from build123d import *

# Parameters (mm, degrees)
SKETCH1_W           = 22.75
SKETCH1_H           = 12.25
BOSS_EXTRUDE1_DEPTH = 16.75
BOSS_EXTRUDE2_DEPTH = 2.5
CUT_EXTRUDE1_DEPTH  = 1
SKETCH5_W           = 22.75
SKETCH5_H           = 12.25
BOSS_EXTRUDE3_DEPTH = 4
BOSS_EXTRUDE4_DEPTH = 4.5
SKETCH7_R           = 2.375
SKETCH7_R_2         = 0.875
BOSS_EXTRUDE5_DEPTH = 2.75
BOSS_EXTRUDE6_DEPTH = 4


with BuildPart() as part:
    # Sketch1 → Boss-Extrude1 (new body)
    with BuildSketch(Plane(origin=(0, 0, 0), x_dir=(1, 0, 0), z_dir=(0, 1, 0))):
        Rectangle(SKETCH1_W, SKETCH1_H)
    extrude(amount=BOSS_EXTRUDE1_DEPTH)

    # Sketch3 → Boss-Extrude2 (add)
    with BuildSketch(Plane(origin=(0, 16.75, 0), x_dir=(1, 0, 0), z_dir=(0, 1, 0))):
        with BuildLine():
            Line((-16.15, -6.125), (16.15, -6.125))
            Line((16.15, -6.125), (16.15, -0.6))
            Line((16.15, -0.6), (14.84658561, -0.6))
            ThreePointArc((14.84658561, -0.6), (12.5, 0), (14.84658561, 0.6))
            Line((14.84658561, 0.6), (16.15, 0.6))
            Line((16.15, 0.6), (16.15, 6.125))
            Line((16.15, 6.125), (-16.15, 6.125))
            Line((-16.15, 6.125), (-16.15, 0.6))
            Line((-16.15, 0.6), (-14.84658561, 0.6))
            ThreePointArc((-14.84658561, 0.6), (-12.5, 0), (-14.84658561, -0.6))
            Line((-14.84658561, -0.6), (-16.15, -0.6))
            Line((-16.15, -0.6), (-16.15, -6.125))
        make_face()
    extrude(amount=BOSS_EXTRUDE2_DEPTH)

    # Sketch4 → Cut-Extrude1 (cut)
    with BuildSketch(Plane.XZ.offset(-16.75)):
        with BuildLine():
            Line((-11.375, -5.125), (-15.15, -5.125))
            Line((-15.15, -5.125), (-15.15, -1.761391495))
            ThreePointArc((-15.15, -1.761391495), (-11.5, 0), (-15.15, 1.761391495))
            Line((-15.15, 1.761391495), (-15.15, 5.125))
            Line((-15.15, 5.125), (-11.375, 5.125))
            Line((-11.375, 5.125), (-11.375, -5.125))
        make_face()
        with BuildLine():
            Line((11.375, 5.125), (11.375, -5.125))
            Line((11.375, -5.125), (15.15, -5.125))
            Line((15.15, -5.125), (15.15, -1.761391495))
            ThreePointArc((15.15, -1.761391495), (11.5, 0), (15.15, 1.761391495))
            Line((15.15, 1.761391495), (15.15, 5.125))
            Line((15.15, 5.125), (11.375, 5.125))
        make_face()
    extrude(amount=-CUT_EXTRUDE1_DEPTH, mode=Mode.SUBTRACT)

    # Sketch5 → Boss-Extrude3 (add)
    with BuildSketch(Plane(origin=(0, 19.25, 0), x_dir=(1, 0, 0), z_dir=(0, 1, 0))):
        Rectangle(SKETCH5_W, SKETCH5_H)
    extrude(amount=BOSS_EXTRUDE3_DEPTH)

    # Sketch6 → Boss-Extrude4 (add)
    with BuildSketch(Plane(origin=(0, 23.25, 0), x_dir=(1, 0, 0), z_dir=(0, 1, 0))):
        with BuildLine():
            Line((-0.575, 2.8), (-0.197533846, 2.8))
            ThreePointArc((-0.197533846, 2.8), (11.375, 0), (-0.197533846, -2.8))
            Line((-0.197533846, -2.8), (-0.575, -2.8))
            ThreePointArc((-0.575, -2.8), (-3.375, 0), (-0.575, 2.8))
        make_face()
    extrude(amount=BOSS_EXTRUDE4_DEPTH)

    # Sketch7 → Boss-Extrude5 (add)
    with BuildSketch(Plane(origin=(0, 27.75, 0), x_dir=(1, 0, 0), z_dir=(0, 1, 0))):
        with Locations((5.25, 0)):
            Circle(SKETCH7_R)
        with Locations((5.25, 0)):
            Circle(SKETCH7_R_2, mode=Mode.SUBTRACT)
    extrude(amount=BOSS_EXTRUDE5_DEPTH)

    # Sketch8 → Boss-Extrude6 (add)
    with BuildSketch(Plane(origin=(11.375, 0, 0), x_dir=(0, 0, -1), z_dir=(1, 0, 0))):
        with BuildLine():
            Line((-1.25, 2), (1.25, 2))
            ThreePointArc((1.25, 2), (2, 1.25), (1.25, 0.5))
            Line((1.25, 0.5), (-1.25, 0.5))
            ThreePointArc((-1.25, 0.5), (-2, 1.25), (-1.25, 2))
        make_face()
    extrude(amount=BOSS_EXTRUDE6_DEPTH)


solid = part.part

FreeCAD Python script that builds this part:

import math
import FreeCAD as App
import Part
import Sketcher

V = App.Vector
Q = App.Units.Quantity


def add_polygon(sketch, points):
    """Adds a closed chain of lines whose ends are joined by coincident constraints."""
    first, n = sketch.GeometryCount, len(points)
    for a, b in zip(points, points[1:] + points[:1]):
        sketch.addGeometry(Part.LineSegment(App.Vector(*a, 0), App.Vector(*b, 0)), False)
    for i in range(n):
        sketch.addConstraint(Sketcher.Constraint("Coincident", first + i, 2, first + (i + 1) % n, 1))

doc = App.newDocument("Part")
params = doc.addObject("Spreadsheet::Sheet", "Params")
for row, (alias, value) in enumerate([
    ("sketch1_width", "22.75 mm"),
    ("sketch1_height", "12.25 mm"),
    ("pad1_length", "16.75 mm"),
    ("sketch2_radius", "1.25 mm"),
    ("sketch2_width", "32.3 mm"),
    ("pad2_length", "2.5 mm"),
    ("sketch3_radius", "2.25 mm"),
    ("sketch3_height", "10.25 mm"),
    ("pocket1_length", "1 mm"),
    ("sketch4_width", "22.75 mm"),
    ("sketch4_height", "12.25 mm"),
    ("pad3_length", "4 mm"),
    ("sketch5_radius", "2.8 mm"),
    ("pad4_length", "4.5 mm"),
    ("sketch6_diameter", "4.75 mm"),
    ("sketch6_diameter2", "1.75 mm"),
    ("pad5_length", "2.75 mm"),
    ("sketch7_radius", "0.75 mm"),
    ("sketch7_height", "2.5 mm"),
    ("pad6_length", "4 mm"),
], start=1):
    params.set(f"A{row}", alias)
    params.set(f"B{row}", "=" + value)
    params.setAlias(f"B{row}", alias)

body = doc.addObject("PartDesign::Body", "Body")

# Sketch on XZ plane
sketch1 = body.newObject("Sketcher::SketchObject", "Sketch")
sketch1.AttachmentSupport = (doc.getObject("XZ_Plane"), [""])
sketch1.MapMode = "FlatFace"
add_polygon(sketch1, [(-11, -6), (-11, 6), (11, 6), (11, -6)])  # lines 0-3
sketch1.addConstraint(Sketcher.Constraint("Vertical", 0))
sketch1.addConstraint(Sketcher.Constraint("Horizontal", 1))
sketch1.addConstraint(Sketcher.Constraint("Vertical", 2))
sketch1.addConstraint(Sketcher.Constraint("Horizontal", 3))
sketch1.addConstraint(Sketcher.Constraint("Symmetric", 0, 2, 2, 2, -1, 1))
sketch1.addConstraint(Sketcher.Constraint("DistanceX", 1, 1, 1, 2, Q("22.75 mm")))
sketch1.addConstraint(Sketcher.Constraint("DistanceY", 0, 1, 0, 2, Q("12.25 mm")))
sketch1.setExpression("Constraints[9]", "Params.sketch1_width")
sketch1.setExpression("Constraints[10]", "Params.sketch1_height")
pad1 = body.newObject("PartDesign::Pad", "Pad")
pad1.Profile = sketch1
pad1.setExpression("Length", "Params.pad1_length")
pad1.Reversed = True

# Sketch on XZ plane
sketch2 = body.newObject("Sketcher::SketchObject", "Sketch001")
sketch2.AttachmentSupport = (doc.getObject("XZ_Plane"), [""])
sketch2.MapMode = "FlatFace"
sketch2.AttachmentOffset = App.Placement(V(0, 0, -16.75), App.Rotation())
sketch2.addGeometry(Part.LineSegment(V(-16.1, 6.1, 0), V(16.1, 6.1, 0)), False)
sketch2.addGeometry(Part.LineSegment(V(16.1, 6.1, 0), V(16.1, 0.6, 0)), False)
sketch2.addGeometry(Part.LineSegment(V(16.1, 0.6, 0), V(14.8, 0.6, 0)), False)
sketch2.addGeometry(Part.ArcOfCircle(Part.Circle(V(13.8, 0, 0), V(0, 0, 1), 1.2), math.radians(29), math.radians(331)), False)
sketch2.addGeometry(Part.LineSegment(V(14.8, -0.6, 0), V(16.1, -0.6, 0)), False)
sketch2.addGeometry(Part.LineSegment(V(16.1, -0.6, 0), V(16.1, -6.1, 0)), False)
sketch2.addGeometry(Part.LineSegment(V(16.1, -6.1, 0), V(-16.1, -6.1, 0)), False)
sketch2.addGeometry(Part.LineSegment(V(-16.1, -6.1, 0), V(-16.1, -0.6, 0)), False)
sketch2.addGeometry(Part.LineSegment(V(-16.1, -0.6, 0), V(-14.8, -0.6, 0)), False)
sketch2.addGeometry(Part.ArcOfCircle(Part.Circle(V(-13.8, 0, 0), V(0, 0, 1), 1.2), math.radians(-151), math.radians(151)), False)
sketch2.addGeometry(Part.LineSegment(V(-14.8, 0.6, 0), V(-16.1, 0.6, 0)), False)
sketch2.addGeometry(Part.LineSegment(V(-16.1, 0.6, 0), V(-16.1, 6.1, 0)), False)
sketch2.addConstraint(Sketcher.Constraint("Coincident", 0, 2, 1, 1))
sketch2.addConstraint(Sketcher.Constraint("Coincident", 1, 2, 2, 1))
sketch2.addConstraint(Sketcher.Constraint("Coincident", 2, 2, 3, 1))
sketch2.addConstraint(Sketcher.Constraint("Coincident", 3, 2, 4, 1))
sketch2.addConstraint(Sketcher.Constraint("Coincident", 4, 2, 5, 1))
sketch2.addConstraint(Sketcher.Constraint("Coincident", 5, 2, 6, 1))
sketch2.addConstraint(Sketcher.Constraint("Coincident", 6, 2, 7, 1))
sketch2.addConstraint(Sketcher.Constraint("Coincident", 7, 2, 8, 1))
sketch2.addConstraint(Sketcher.Constraint("Coincident", 8, 2, 9, 1))
sketch2.addConstraint(Sketcher.Constraint("Coincident", 9, 2, 10, 1))
sketch2.addConstraint(Sketcher.Constraint("Coincident", 10, 2, 11, 1))
sketch2.addConstraint(Sketcher.Constraint("Coincident", 11, 2, 0, 1))
sketch2.addConstraint(Sketcher.Constraint("Horizontal", 0))
sketch2.addConstraint(Sketcher.Constraint("Vertical", 1))
sketch2.addConstraint(Sketcher.Constraint("Horizontal", 2))
sketch2.addConstraint(Sketcher.Constraint("Horizontal", 4))
sketch2.addConstraint(Sketcher.Constraint("Vertical", 5))
sketch2.addConstraint(Sketcher.Constraint("Horizontal", 6))
sketch2.addConstraint(Sketcher.Constraint("Vertical", 7))
sketch2.addConstraint(Sketcher.Constraint("Horizontal", 8))
sketch2.addConstraint(Sketcher.Constraint("Horizontal", 10))
sketch2.addConstraint(Sketcher.Constraint("Vertical", 11))
sketch2.addConstraint(Sketcher.Constraint("Equal", 3, 9))
sketch2.addConstraint(Sketcher.Constraint("Symmetric", 3, 3, 9, 3, -1, 1))
sketch2.addConstraint(Sketcher.Constraint("Symmetric", 0, 2, 6, 2, -1, 1))
sketch2.addConstraint(Sketcher.Constraint("Symmetric", 4, 2, 10, 2, -1, 1))
sketch2.addConstraint(Sketcher.Constraint("Symmetric", 4, 2, 7, 2, -2))
sketch2.addConstraint(Sketcher.Constraint("Symmetric", 2, 2, 9, 2, -2))
sketch2.addConstraint(Sketcher.Constraint("Radius", 3, Q("1.25 mm")))
sketch2.addConstraint(Sketcher.Constraint("DistanceX", 0, 1, 0, 2, Q("32.3 mm")))
sketch2.addConstraint(Sketcher.Constraint("DistanceY", -1, 1, 1, 2, Q("0.6 mm")))
sketch2.addConstraint(Sketcher.Constraint("DistanceX", 9, 3, 3, 3, Q("27.5 mm")))
sketch2.addConstraint(Sketcher.Constraint("DistanceY", 1, 2, 1, 1, Q("5.525 mm")))
sketch2.setExpression("Constraints[28]", "Params.sketch2_radius")
sketch2.setExpression("Constraints[29]", "Params.sketch2_width")
pad2 = body.newObject("PartDesign::Pad", "Pad001")
pad2.Profile = sketch2
pad2.setExpression("Length", "Params.pad2_length")
pad2.Reversed = True

# Sketch on XZ plane
sketch3 = body.newObject("Sketcher::SketchObject", "Sketch002")
sketch3.AttachmentSupport = (doc.getObject("XZ_Plane"), [""])
sketch3.MapMode = "FlatFace"
sketch3.AttachmentOffset = App.Placement(V(0, 0, -16.75), App.Rotation())
sketch3.addGeometry(Part.LineSegment(V(-15.2, -5.1, 0), V(-11.4, -5.1, 0)), False)
sketch3.addGeometry(Part.LineSegment(V(-11.4, -5.1, 0), V(-11.4, 5.1, 0)), False)
sketch3.addGeometry(Part.LineSegment(V(-11.4, 5.1, 0), V(-15.2, 5.1, 0)), False)
sketch3.addGeometry(Part.LineSegment(V(-15.2, 5.1, 0), V(-15.2, 1.8, 0)), False)
sketch3.addGeometry(Part.ArcOfCircle(Part.Circle(V(-13.8, 0, 0), V(0, 0, 1), 2.2), math.radians(-128), math.radians(128)), False)
sketch3.addGeometry(Part.LineSegment(V(-15.2, -1.8, 0), V(-15.2, -5.1, 0)), False)
sketch3.addGeometry(Part.LineSegment(V(11.4, 5.1, 0), V(11.4, -5.1, 0)), False)
sketch3.addGeometry(Part.LineSegment(V(11.4, -5.1, 0), V(15.2, -5.1, 0)), False)
sketch3.addGeometry(Part.LineSegment(V(15.2, -5.1, 0), V(15.2, -1.8, 0)), False)
sketch3.addGeometry(Part.ArcOfCircle(Part.Circle(V(13.8, 0, 0), V(0, 0, 1), 2.2), math.radians(52), math.radians(308)), False)
sketch3.addGeometry(Part.LineSegment(V(15.2, 1.8, 0), V(15.2, 5.1, 0)), False)
sketch3.addGeometry(Part.LineSegment(V(15.2, 5.1, 0), V(11.4, 5.1, 0)), False)
sketch3.addConstraint(Sketcher.Constraint("Coincident", 0, 2, 1, 1))
sketch3.addConstraint(Sketcher.Constraint("Coincident", 1, 2, 2, 1))
sketch3.addConstraint(Sketcher.Constraint("Coincident", 2, 2, 3, 1))
sketch3.addConstraint(Sketcher.Constraint("Coincident", 3, 2, 4, 2))
sketch3.addConstraint(Sketcher.Constraint("Coincident", 4, 1, 5, 1))
sketch3.addConstraint(Sketcher.Constraint("Coincident", 5, 2, 0, 1))
sketch3.addConstraint(Sketcher.Constraint("Coincident", 6, 2, 7, 1))
sketch3.addConstraint(Sketcher.Constraint("Coincident", 7, 2, 8, 1))
sketch3.addConstraint(Sketcher.Constraint("Coincident", 8, 2, 9, 2))
sketch3.addConstraint(Sketcher.Constraint("Coincident", 9, 1, 10, 1))
sketch3.addConstraint(Sketcher.Constraint("Coincident", 10, 2, 11, 1))
sketch3.addConstraint(Sketcher.Constraint("Coincident", 11, 2, 6, 1))
sketch3.addConstraint(Sketcher.Constraint("Horizontal", 0))
sketch3.addConstraint(Sketcher.Constraint("Vertical", 1))
sketch3.addConstraint(Sketcher.Constraint("Horizontal", 2))
sketch3.addConstraint(Sketcher.Constraint("Vertical", 3))
sketch3.addConstraint(Sketcher.Constraint("Vertical", 5))
sketch3.addConstraint(Sketcher.Constraint("Vertical", 6))
sketch3.addConstraint(Sketcher.Constraint("Horizontal", 7))
sketch3.addConstraint(Sketcher.Constraint("Vertical", 8))
sketch3.addConstraint(Sketcher.Constraint("Vertical", 10))
sketch3.addConstraint(Sketcher.Constraint("Horizontal", 11))
sketch3.addConstraint(Sketcher.Constraint("Equal", 4, 9))
sketch3.addConstraint(Sketcher.Constraint("Symmetric", 4, 3, 9, 3, -1, 1))
sketch3.addConstraint(Sketcher.Constraint("Symmetric", 1, 2, 6, 2, -1, 1))
sketch3.addConstraint(Sketcher.Constraint("Symmetric", 5, 2, 10, 2, -1, 1))
sketch3.addConstraint(Sketcher.Constraint("Symmetric", 5, 2, 7, 2, -2))
sketch3.addConstraint(Sketcher.Constraint("Symmetric", 3, 2, 9, 1, -2))
sketch3.addConstraint(Sketcher.Constraint("Radius", 4, Q("2.25 mm")))
sketch3.addConstraint(Sketcher.Constraint("DistanceY", 1, 1, 1, 2, Q("10.25 mm")))
sketch3.addConstraint(Sketcher.Constraint("DistanceX", 4, 3, 9, 3, Q("27.5 mm")))
sketch3.addConstraint(Sketcher.Constraint("DistanceX", 2, 2, 4, 3, Q("1.4 mm")))
sketch3.addConstraint(Sketcher.Constraint("DistanceX", 0, 1, 0, 2, Q("3.775 mm")))
sketch3.setExpression("Constraints[28]", "Params.sketch3_radius")
sketch3.setExpression("Constraints[29]", "Params.sketch3_height")
pocket1 = body.newObject("PartDesign::Pocket", "Pocket")
pocket1.Profile = sketch3
pocket1.setExpression("Length", "Params.pocket1_length")

# Sketch on XZ plane
sketch4 = body.newObject("Sketcher::SketchObject", "Sketch003")
sketch4.AttachmentSupport = (doc.getObject("XZ_Plane"), [""])
sketch4.MapMode = "FlatFace"
sketch4.AttachmentOffset = App.Placement(V(0, 0, -19.25), App.Rotation())
add_polygon(sketch4, [(-11, -6), (-11, 6), (11, 6), (11, -6)])  # lines 0-3
sketch4.addConstraint(Sketcher.Constraint("Vertical", 0))
sketch4.addConstraint(Sketcher.Constraint("Horizontal", 1))
sketch4.addConstraint(Sketcher.Constraint("Vertical", 2))
sketch4.addConstraint(Sketcher.Constraint("Horizontal", 3))
sketch4.addConstraint(Sketcher.Constraint("Symmetric", 0, 2, 2, 2, -1, 1))
sketch4.addConstraint(Sketcher.Constraint("DistanceX", 1, 1, 1, 2, Q("22.75 mm")))
sketch4.addConstraint(Sketcher.Constraint("DistanceY", 0, 1, 0, 2, Q("12.25 mm")))
sketch4.setExpression("Constraints[9]", "Params.sketch4_width")
sketch4.setExpression("Constraints[10]", "Params.sketch4_height")
pad3 = body.newObject("PartDesign::Pad", "Pad002")
pad3.Profile = sketch4
pad3.setExpression("Length", "Params.pad3_length")
pad3.Reversed = True

# Sketch on XZ plane
sketch5 = body.newObject("Sketcher::SketchObject", "Sketch004")
sketch5.AttachmentSupport = (doc.getObject("XZ_Plane"), [""])
sketch5.MapMode = "FlatFace"
sketch5.AttachmentOffset = App.Placement(V(0, 0, -23.25), App.Rotation())
sketch5.addGeometry(Part.LineSegment(V(-0.2, -2.8, 0), V(-0.57, -2.8, 0)), False)
sketch5.addGeometry(Part.ArcOfCircle(Part.Circle(V(-0.57, 0, 0), V(0, 0, 1), 2.8), math.radians(90), math.radians(270)), False)
sketch5.addGeometry(Part.LineSegment(V(-0.57, 2.8, 0), V(-0.2, 2.8, 0)), False)
sketch5.addGeometry(Part.ArcOfCircle(Part.Circle(V(5.25, 0, 0), V(0, 0, 1), 6.12), math.radians(-153), math.radians(153)), False)
sketch5.addConstraint(Sketcher.Constraint("Tangent", 0, 2, 1, 2))
sketch5.addConstraint(Sketcher.Constraint("Tangent", 1, 1, 2, 1))
sketch5.addConstraint(Sketcher.Constraint("Coincident", 2, 2, 3, 2))
sketch5.addConstraint(Sketcher.Constraint("Coincident", 3, 1, 0, 1))
sketch5.addConstraint(Sketcher.Constraint("Horizontal", 0))
sketch5.addConstraint(Sketcher.Constraint("Horizontal", 2))
sketch5.addConstraint(Sketcher.Constraint("Symmetric", 2, 2, 3, 1, -1))
sketch5.addConstraint(Sketcher.Constraint("Radius", 1, Q("2.8 mm")))
sketch5.addConstraint(Sketcher.Constraint("Radius", 3, Q("6.125 mm")))
sketch5.addConstraint(Sketcher.Constraint("DistanceX", -1, 1, 3, 3, Q("5.25 mm")))
sketch5.addConstraint(Sketcher.Constraint("DistanceX", 1, 3, -1, 1, Q("0.575 mm")))
sketch5.setExpression("Constraints[7]", "Params.sketch5_radius")
pad4 = body.newObject("PartDesign::Pad", "Pad003")
pad4.Profile = sketch5
pad4.setExpression("Length", "Params.pad4_length")
pad4.Reversed = True

# Sketch on XZ plane
sketch6 = body.newObject("Sketcher::SketchObject", "Sketch005")
sketch6.AttachmentSupport = (doc.getObject("XZ_Plane"), [""])
sketch6.MapMode = "FlatFace"
sketch6.AttachmentOffset = App.Placement(V(0, 0, -27.75), App.Rotation())
sketch6.addGeometry(Part.Circle(V(5.2, 0, 0), V(0, 0, 1), 2.4), False)
sketch6.addGeometry(Part.Circle(V(5.2, 0, 0), V(0, 0, 1), 0.9), False)
sketch6.addConstraint(Sketcher.Constraint("Coincident", 1, 3, 0, 3))
sketch6.addConstraint(Sketcher.Constraint("PointOnObject", 0, 3, -1))
sketch6.addConstraint(Sketcher.Constraint("Diameter", 0, Q("4.75 mm")))
sketch6.addConstraint(Sketcher.Constraint("Diameter", 1, Q("1.75 mm")))
sketch6.addConstraint(Sketcher.Constraint("DistanceX", -1, 1, 0, 3, Q("5.25 mm")))
sketch6.setExpression("Constraints[2]", "Params.sketch6_diameter")
sketch6.setExpression("Constraints[3]", "Params.sketch6_diameter2")
pad5 = body.newObject("PartDesign::Pad", "Pad004")
pad5.Profile = sketch6
pad5.setExpression("Length", "Params.pad5_length")
pad5.Reversed = True

# Sketch on YZ plane
sketch7 = body.newObject("Sketcher::SketchObject", "Sketch006")
sketch7.AttachmentSupport = (doc.getObject("YZ_Plane"), [""])
sketch7.MapMode = "FlatFace"
sketch7.AttachmentOffset = App.Placement(V(0, 0, 11.375), App.Rotation())
sketch7.addGeometry(Part.LineSegment(V(2, -1.2, 0), V(2, 1.2, 0)), False)
sketch7.addGeometry(Part.ArcOfCircle(Part.Circle(V(1.2, 1.2, 0), V(0, 0, 1), 0.8), math.radians(0), math.radians(180)), False)
sketch7.addGeometry(Part.LineSegment(V(0.5, 1.2, 0), V(0.5, -1.2, 0)), False)
sketch7.addGeometry(Part.ArcOfCircle(Part.Circle(V(1.2, -1.2, 0), V(0, 0, 1), 0.8), math.radians(180), math.radians(360)), False)
sketch7.addConstraint(Sketcher.Constraint("Tangent", 0, 2, 1, 1))
sketch7.addConstraint(Sketcher.Constraint("Tangent", 1, 2, 2, 1))
sketch7.addConstraint(Sketcher.Constraint("Tangent", 2, 2, 3, 1))
sketch7.addConstraint(Sketcher.Constraint("Tangent", 3, 2, 0, 1))
sketch7.addConstraint(Sketcher.Constraint("Vertical", 0))
sketch7.addConstraint(Sketcher.Constraint("Vertical", 2))
sketch7.addConstraint(Sketcher.Constraint("Radius", 1, Q("0.75 mm")))
sketch7.addConstraint(Sketcher.Constraint("DistanceY", 0, 1, 0, 2, Q("2.5 mm")))
sketch7.addConstraint(Sketcher.Constraint("DistanceX", -1, 1, 0, 2, Q("2 mm")))
sketch7.addConstraint(Sketcher.Constraint("DistanceY", -1, 1, 1, 3, Q("1.25 mm")))
sketch7.setExpression("Constraints[6]", "Params.sketch7_radius")
sketch7.setExpression("Constraints[7]", "Params.sketch7_height")
pad6 = body.newObject("PartDesign::Pad", "Pad005")
pad6.Profile = sketch7
pad6.setExpression("Length", "Params.pad6_length")

doc.recompute()
